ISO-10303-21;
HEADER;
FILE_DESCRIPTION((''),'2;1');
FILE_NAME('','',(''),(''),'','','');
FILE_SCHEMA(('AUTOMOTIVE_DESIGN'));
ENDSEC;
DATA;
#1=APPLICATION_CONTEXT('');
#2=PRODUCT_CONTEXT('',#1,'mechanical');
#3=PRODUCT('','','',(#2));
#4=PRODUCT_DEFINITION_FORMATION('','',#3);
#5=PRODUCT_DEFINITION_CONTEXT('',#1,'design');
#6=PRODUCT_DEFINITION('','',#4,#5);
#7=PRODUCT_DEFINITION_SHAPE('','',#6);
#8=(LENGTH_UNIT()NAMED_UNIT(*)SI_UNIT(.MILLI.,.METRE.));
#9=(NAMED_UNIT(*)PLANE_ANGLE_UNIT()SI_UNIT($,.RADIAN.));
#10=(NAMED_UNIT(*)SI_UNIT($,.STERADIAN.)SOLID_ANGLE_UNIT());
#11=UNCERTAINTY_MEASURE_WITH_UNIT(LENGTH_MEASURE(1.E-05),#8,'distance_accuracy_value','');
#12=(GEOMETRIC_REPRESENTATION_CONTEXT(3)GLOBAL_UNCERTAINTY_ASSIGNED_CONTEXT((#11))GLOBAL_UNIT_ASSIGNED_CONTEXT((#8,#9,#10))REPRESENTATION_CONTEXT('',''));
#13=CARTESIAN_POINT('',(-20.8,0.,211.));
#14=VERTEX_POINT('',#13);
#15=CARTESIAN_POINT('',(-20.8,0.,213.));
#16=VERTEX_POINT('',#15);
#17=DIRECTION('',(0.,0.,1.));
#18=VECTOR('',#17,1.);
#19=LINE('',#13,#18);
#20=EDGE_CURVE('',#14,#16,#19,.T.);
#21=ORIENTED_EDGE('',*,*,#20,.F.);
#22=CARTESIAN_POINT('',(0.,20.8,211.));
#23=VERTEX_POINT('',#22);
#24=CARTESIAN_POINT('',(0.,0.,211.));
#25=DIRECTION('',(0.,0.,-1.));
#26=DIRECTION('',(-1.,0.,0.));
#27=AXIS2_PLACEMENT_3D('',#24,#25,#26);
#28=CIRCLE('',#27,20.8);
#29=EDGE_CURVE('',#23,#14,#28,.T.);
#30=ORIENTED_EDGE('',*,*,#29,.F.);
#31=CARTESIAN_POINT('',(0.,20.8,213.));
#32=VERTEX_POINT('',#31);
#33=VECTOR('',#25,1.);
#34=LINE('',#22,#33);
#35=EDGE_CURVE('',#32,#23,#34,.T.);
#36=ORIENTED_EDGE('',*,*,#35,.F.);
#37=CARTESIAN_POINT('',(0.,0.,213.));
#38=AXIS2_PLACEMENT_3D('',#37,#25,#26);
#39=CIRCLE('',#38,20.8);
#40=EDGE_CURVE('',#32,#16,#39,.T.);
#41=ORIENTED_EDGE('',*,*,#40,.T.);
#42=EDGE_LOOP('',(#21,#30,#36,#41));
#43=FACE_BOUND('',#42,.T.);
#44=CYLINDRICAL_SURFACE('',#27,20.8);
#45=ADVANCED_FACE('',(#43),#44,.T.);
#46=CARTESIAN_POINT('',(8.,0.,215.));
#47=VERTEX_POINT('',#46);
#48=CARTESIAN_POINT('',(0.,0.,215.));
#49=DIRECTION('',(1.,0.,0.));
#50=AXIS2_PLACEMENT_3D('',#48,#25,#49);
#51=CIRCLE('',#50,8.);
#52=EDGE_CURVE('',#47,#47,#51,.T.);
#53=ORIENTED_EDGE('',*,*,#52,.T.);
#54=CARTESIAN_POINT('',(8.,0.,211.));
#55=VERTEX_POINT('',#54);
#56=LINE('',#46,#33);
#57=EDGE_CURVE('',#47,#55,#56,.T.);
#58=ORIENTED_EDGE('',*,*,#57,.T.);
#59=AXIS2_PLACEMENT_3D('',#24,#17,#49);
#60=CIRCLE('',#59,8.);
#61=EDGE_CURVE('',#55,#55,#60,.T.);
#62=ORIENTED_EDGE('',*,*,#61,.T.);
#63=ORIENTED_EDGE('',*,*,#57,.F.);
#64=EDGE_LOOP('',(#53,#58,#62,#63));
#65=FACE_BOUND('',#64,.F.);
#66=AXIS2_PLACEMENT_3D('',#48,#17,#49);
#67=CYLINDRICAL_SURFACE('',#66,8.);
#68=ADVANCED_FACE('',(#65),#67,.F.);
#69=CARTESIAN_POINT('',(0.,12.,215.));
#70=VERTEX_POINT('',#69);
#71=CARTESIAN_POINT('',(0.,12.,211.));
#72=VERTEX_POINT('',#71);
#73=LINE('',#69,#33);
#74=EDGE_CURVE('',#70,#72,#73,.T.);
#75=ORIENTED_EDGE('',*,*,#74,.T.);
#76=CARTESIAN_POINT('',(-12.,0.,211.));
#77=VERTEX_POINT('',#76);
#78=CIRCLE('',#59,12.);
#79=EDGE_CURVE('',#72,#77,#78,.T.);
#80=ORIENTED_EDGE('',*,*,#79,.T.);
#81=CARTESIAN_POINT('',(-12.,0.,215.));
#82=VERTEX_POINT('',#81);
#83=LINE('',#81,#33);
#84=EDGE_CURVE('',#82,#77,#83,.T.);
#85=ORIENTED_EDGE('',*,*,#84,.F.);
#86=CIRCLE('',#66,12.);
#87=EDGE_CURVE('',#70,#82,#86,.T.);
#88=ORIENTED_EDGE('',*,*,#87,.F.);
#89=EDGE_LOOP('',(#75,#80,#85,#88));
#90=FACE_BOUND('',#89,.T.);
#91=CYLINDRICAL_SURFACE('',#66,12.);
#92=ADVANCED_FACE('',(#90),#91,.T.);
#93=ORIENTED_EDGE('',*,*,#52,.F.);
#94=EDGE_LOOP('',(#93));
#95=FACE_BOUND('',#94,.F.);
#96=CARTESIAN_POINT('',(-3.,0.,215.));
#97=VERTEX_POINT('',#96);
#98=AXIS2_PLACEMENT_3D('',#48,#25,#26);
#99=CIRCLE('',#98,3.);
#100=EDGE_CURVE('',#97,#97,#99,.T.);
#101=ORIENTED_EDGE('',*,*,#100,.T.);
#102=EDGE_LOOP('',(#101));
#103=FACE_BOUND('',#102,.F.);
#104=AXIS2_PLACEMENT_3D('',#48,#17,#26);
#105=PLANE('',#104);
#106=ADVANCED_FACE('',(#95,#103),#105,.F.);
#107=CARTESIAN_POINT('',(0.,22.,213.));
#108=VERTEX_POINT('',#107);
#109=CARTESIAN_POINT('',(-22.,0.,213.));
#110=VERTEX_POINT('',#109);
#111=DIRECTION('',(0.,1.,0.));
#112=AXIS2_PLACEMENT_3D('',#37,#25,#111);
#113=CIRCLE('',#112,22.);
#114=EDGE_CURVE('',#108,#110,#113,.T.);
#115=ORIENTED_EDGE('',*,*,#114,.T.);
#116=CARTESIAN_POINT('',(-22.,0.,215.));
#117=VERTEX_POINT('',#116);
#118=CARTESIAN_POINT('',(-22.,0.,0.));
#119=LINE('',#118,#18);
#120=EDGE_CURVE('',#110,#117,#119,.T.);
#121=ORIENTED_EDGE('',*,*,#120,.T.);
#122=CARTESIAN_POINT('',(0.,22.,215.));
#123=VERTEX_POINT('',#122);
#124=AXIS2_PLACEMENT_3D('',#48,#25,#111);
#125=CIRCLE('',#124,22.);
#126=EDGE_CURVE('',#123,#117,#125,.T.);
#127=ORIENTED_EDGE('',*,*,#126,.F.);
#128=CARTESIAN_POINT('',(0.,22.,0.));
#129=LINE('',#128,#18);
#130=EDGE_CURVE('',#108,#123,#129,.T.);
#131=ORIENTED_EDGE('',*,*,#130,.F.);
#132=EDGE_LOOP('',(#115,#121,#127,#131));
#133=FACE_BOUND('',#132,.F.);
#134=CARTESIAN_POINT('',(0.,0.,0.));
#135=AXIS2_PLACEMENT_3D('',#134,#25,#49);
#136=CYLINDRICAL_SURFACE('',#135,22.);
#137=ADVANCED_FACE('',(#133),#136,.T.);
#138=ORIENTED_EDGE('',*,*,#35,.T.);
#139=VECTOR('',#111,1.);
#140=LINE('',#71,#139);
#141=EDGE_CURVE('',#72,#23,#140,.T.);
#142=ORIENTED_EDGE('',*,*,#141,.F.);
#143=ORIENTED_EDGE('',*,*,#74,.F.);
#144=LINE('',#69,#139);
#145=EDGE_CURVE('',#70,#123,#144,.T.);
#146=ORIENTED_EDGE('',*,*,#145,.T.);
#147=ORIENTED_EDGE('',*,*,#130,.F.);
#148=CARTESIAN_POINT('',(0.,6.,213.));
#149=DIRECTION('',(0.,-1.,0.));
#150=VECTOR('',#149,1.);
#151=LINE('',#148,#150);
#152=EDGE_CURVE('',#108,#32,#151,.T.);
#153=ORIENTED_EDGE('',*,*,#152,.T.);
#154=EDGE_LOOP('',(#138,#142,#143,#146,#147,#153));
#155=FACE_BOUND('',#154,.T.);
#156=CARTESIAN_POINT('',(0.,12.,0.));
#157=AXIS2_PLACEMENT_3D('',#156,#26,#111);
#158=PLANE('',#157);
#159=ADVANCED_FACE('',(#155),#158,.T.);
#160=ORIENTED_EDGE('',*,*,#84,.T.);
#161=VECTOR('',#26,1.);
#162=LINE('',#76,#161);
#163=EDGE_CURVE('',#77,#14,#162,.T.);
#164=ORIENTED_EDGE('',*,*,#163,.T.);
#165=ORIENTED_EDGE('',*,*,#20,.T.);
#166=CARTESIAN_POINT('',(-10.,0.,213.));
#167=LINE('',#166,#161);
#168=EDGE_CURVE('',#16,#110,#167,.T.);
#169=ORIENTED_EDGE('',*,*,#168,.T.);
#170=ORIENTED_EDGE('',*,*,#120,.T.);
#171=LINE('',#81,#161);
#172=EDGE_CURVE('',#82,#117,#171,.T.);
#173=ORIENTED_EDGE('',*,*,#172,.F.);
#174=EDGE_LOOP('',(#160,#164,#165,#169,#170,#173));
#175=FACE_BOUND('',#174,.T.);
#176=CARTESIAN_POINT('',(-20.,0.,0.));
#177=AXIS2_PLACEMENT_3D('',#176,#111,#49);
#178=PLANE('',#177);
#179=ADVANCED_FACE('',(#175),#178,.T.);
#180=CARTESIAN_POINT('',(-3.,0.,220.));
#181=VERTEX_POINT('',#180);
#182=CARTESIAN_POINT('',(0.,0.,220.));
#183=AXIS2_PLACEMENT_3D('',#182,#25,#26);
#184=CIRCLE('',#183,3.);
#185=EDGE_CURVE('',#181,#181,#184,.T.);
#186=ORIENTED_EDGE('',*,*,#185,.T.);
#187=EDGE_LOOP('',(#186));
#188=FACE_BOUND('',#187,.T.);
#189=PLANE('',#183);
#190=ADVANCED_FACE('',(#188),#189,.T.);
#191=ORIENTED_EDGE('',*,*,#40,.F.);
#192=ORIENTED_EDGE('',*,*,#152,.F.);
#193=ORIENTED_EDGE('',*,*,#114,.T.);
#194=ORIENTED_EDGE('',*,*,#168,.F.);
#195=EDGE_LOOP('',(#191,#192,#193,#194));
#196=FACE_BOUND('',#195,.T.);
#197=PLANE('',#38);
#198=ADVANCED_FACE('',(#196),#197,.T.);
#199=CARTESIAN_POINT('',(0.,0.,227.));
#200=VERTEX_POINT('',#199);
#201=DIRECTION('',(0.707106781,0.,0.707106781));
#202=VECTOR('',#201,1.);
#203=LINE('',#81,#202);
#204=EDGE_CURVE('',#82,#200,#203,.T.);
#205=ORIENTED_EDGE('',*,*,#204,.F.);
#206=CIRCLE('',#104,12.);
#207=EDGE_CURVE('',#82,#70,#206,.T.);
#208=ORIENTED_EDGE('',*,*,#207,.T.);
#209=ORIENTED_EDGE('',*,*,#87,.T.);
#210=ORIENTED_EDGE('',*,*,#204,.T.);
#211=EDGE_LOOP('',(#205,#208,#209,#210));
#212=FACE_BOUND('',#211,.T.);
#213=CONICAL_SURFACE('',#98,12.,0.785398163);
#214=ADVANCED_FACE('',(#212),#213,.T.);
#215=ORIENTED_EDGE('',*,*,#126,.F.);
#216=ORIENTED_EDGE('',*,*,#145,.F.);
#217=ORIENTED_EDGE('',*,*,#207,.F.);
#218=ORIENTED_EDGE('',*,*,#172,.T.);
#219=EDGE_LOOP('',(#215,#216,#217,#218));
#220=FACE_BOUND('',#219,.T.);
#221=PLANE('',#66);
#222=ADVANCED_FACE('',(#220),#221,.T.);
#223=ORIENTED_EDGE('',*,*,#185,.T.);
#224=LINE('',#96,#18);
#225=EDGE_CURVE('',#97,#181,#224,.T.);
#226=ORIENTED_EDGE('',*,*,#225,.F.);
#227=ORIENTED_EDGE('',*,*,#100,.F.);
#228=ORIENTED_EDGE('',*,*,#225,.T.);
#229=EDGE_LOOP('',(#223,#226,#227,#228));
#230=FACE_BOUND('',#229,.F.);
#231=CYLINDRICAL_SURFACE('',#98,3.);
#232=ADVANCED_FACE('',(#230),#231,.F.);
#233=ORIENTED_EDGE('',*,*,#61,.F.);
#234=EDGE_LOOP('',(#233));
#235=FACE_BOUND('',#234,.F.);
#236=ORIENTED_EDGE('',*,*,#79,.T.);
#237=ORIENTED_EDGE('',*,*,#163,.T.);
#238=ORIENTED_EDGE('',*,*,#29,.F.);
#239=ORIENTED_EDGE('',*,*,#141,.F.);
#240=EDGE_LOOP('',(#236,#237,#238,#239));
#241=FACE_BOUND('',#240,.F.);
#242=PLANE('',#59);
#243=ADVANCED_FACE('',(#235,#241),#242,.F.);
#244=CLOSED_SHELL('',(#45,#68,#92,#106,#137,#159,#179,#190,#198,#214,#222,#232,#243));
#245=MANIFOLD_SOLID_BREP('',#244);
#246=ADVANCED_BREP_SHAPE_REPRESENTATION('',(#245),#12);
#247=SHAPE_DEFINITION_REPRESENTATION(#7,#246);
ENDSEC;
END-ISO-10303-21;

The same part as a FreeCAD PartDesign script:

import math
import FreeCAD as App
import Part
import Sketcher

V = App.Vector
Q = App.Units.Quantity


def add_polygon(sketch, points):
    """Adds a closed chain of lines whose ends are joined by coincident constraints."""
    first, n = sketch.GeometryCount, len(points)
    for a, b in zip(points, points[1:] + points[:1]):
        sketch.addGeometry(Part.LineSegment(App.Vector(*a, 0), App.Vector(*b, 0)), False)
    for i in range(n):
        sketch.addConstraint(Sketcher.Constraint("Coincident", first + i, 2, first + (i + 1) % n, 1))

doc = App.newDocument("Part")
body = doc.addObject("PartDesign::Body", "Body")

# Sketch on XY plane
sketch1 = body.newObject("Sketcher::SketchObject", "Sketch")
sketch1.AttachmentSupport = (doc.getObject("XY_Plane"), [""])
sketch1.MapMode = "FlatFace"
sketch1.addGeometry(Part.LineSegment(V(0, 22, 0), V(0, 20, 0)), False)
sketch1.addGeometry(Part.ArcOfCircle(Part.Circle(V(0, 0, 0), V(0, 0, 1), 20), math.radians(180), math.radians(450)), False)
sketch1.addGeometry(Part.LineSegment(V(-20, 0, 0), V(-22, 0, 0)), False)
sketch1.addGeometry(Part.ArcOfCircle(Part.Circle(V(0, 0, 0), V(0, 0, 1), 22), math.radians(180), math.radians(450)), False)
sketch1.addConstraint(Sketcher.Constraint("Coincident", 0, 2, 1, 2))
sketch1.addConstraint(Sketcher.Constraint("Coincident", 1, 1, 2, 1))
sketch1.addConstraint(Sketcher.Constraint("Coincident", 2, 2, 3, 1))
sketch1.addConstraint(Sketcher.Constraint("Coincident", 3, 2, 0, 1))
sketch1.addConstraint(Sketcher.Constraint("Vertical", 0))
sketch1.addConstraint(Sketcher.Constraint("Horizontal", 2))
sketch1.addConstraint(Sketcher.Constraint("Coincident", 1, 3, -1, 1))
sketch1.addConstraint(Sketcher.Constraint("Coincident", 3, 3, -1, 1))
sketch1.addConstraint(Sketcher.Constraint("PointOnObject", 0, 2, -2))
sketch1.addConstraint(Sketcher.Constraint("PointOnObject", 1, 1, -1))
sketch1.addConstraint(Sketcher.Constraint("Radius", 1, Q("20 mm")))
sketch1.addConstraint(Sketcher.Constraint("DistanceX", 2, 2, 2, 1, Q("2 mm")))
pad1 = body.newObject("PartDesign::Pad", "Pad")
pad1.Profile = sketch1
pad1.Length = 215

# Sketch on XY plane
sketch2 = body.newObject("Sketcher::SketchObject", "Sketch001")
sketch2.AttachmentSupport = (doc.getObject("XY_Plane"), [""])
sketch2.MapMode = "FlatFace"
sketch2.AttachmentOffset = App.Placement(V(0, 0, 215), App.Rotation())
sketch2.addGeometry(Part.LineSegment(V(-12, 0, 0), V(-20, 0, 0)), False)
sketch2.addGeometry(Part.ArcOfCircle(Part.Circle(V(0, 0, 0), V(0, 0, 1), 20), math.radians(180), math.radians(450)), False)
sketch2.addGeometry(Part.LineSegment(V(0, 20, 0), V(0, 12, 0)), False)
sketch2.addGeometry(Part.ArcOfCircle(Part.Circle(V(0, 0, 0), V(0, 0, 1), 12), math.radians(90), math.radians(180)), False)
sketch2.addGeometry(Part.Circle(V(0, 0, 0), V(0, 0, 1), 8), False)
sketch2.addConstraint(Sketcher.Constraint("Coincident", 0, 2, 1, 1))
sketch2.addConstraint(Sketcher.Constraint("Coincident", 1, 2, 2, 1))
sketch2.addConstraint(Sketcher.Constraint("Coincident", 2, 2, 3, 1))
sketch2.addConstraint(Sketcher.Constraint("Coincident", 3, 2, 0, 1))
sketch2.addConstraint(Sketcher.Constraint("Horizontal", 0))
sketch2.addConstraint(Sketcher.Constraint("Vertical", 2))
sketch2.addConstraint(Sketcher.Constraint("Coincident", 1, 3, -1, 1))
sketch2.addConstraint(Sketcher.Constraint("Coincident", 3, 3, -1, 1))
sketch2.addConstraint(Sketcher.Constraint("Coincident", 4, 3, -1, 1))
sketch2.addConstraint(Sketcher.Constraint("PointOnObject", 0, 2, -1))
sketch2.addConstraint(Sketcher.Constraint("PointOnObject", 1, 2, -2))
sketch2.addConstraint(Sketcher.Constraint("Diameter", 4, Q("16 mm")))
sketch2.addConstraint(Sketcher.Constraint("Radius", 1, Q("20 mm")))
sketch2.addConstraint(Sketcher.Constraint("Radius", 3, Q("12 mm")))
pad2 = body.newObject("PartDesign::Pad", "Pad001")
pad2.Profile = sketch2
pad2.Length = 4
pad2.Reversed = True

# Sketch on XY plane
sketch3 = body.newObject("Sketcher::SketchObject", "Sketch002")
sketch3.AttachmentSupport = (doc.getObject("XY_Plane"), [""])
sketch3.MapMode = "FlatFace"
sketch3.addGeometry(Part.ArcOfCircle(Part.Circle(V(0, 0, 0), V(0, 0, 1), 20), math.radians(180), math.radians(450)), False)
sketch3.addGeometry(Part.LineSegment(V(-20, 0, 0), V(-12, 0, 0)), False)
sketch3.addGeometry(Part.ArcOfCircle(Part.Circle(V(0, 0, 0), V(0, 0, 1), 12), math.radians(90), math.radians(180)), False)
sketch3.addGeometry(Part.LineSegment(V(0, 12, 0), V(0, 20, 0)), False)
sketch3.addGeometry(Part.Circle(V(0, 0, 0), V(0, 0, 1), 8), False)
sketch3.addConstraint(Sketcher.Constraint("Coincident", 0, 1, 1, 1))
sketch3.addConstraint(Sketcher.Constraint("Coincident", 1, 2, 2, 2))
sketch3.addConstraint(Sketcher.Constraint("Coincident", 2, 1, 3, 1))
sketch3.addConstraint(Sketcher.Constraint("Coincident", 3, 2, 0, 2))
sketch3.addConstraint(Sketcher.Constraint("Horizontal", 1))
sketch3.addConstraint(Sketcher.Constraint("Vertical", 3))
sketch3.addConstraint(Sketcher.Constraint("Coincident", 0, 3, -1, 1))
sketch3.addConstraint(Sketcher.Constraint("Coincident", 2, 3, -1, 1))
sketch3.addConstraint(Sketcher.Constraint("Coincident", 4, 3, -1, 1))
sketch3.addConstraint(Sketcher.Constraint("PointOnObject", 0, 1, -1))
sketch3.addConstraint(Sketcher.Constraint("PointOnObject", 2, 1, -2))
sketch3.addConstraint(Sketcher.Constraint("Diameter", 4, Q("16 mm")))
sketch3.addConstraint(Sketcher.Constraint("Radius", 0, Q("20 mm")))
sketch3.addConstraint(Sketcher.Constraint("Radius", 2, Q("12 mm")))
pad3 = body.newObject("PartDesign::Pad", "Pad002")
pad3.Profile = sketch3
pad3.Length = 4

# Sketch on XY plane
sketch4 = body.newObject("Sketcher::SketchObject", "Sketch003")
sketch4.AttachmentSupport = (doc.getObject("XY_Plane"), [""])
sketch4.MapMode = "FlatFace"
add_polygon(sketch4, [(-60, 0), (-20, 0), (-20, -4), (-60, -4)])  # lines 0-3
sketch4.addConstraint(Sketcher.Constraint("Horizontal", 0))
sketch4.addConstraint(Sketcher.Constraint("Vertical", 1))
sketch4.addConstraint(Sketcher.Constraint("Horizontal", 2))
sketch4.addConstraint(Sketcher.Constraint("Vertical", 3))
sketch4.addConstraint(Sketcher.Constraint("PointOnObject", 0, 2, -1))
sketch4.addConstraint(Sketcher.Constraint("DistanceX", 0, 1, 0, 2, Q("40 mm")))
sketch4.addConstraint(Sketcher.Constraint("DistanceY", 1, 2, 1, 1, Q("4 mm")))
sketch4.addConstraint(Sketcher.Constraint("DistanceX", 0, 2, -1, 1, Q("20 mm")))
pad4 = body.newObject("PartDesign::Pad", "Pad003")
pad4.Profile = sketch4
pad4.Length = 60

# Sketch on XZ plane
sketch5 = body.newObject("Sketcher::SketchObject", "Sketch004")
sketch5.AttachmentSupport = (doc.getObject("XZ_Plane"), [""])
sketch5.MapMode = "FlatFace"
sketch5.AttachmentOffset = App.Placement(V(0, 0, 4), App.Rotation())
add_polygon(sketch5, [(-35, 50), (-50, 50), (-50, 45), (-35, 45)])  # lines 0-3
add_polygon(sketch5, [(-35, 15), (-50, 15), (-50, 10), (-35, 10)])  # lines 4-7
add_polygon(sketch5, [(-35, 28), (-35, 32), (-50, 32), (-50, 28)])  # lines 8-11
sketch5.addConstraint(Sketcher.Constraint("Horizontal", 0))
sketch5.addConstraint(Sketcher.Constraint("Vertical", 1))
sketch5.addConstraint(Sketcher.Constraint("Horizontal", 2))
sketch5.addConstraint(Sketcher.Constraint("Vertical", 3))
sketch5.addConstraint(Sketcher.Constraint("Horizontal", 4))
sketch5.addConstraint(Sketcher.Constraint("Vertical", 5))
sketch5.addConstraint(Sketcher.Constraint("Horizontal", 6))
sketch5.addConstraint(Sketcher.Constraint("Vertical", 7))
sketch5.addConstraint(Sketcher.Constraint("Vertical", 8))
sketch5.addConstraint(Sketcher.Constraint("Horizontal", 9))
sketch5.addConstraint(Sketcher.Constraint("Vertical", 10))
sketch5.addConstraint(Sketcher.Constraint("Horizontal", 11))
sketch5.addConstraint(Sketcher.Constraint("Vertical", 1, 2, 4, 2))
sketch5.addConstraint(Sketcher.Constraint("Vertical", 3, 2, 6, 2))
sketch5.addConstraint(Sketcher.Constraint("Vertical", 7, 2, 8, 2))
sketch5.addConstraint(Sketcher.Constraint("Vertical", 5, 2, 9, 2))
sketch5.addConstraint(Sketcher.Constraint("Equal", 3, 5))
sketch5.addConstraint(Sketcher.Constraint("Equal", 7, 8))
sketch5.addConstraint(Sketcher.Constraint("DistanceX", 0, 2, 0, 1, Q("15 mm")))
sketch5.addConstraint(Sketcher.Constraint("DistanceY", 1, 2, 1, 1, Q("5 mm")))
sketch5.addConstraint(Sketcher.Constraint("DistanceY", -1, 1, 4, 2, Q("15 mm")))
sketch5.addConstraint(Sketcher.Constraint("DistanceX", 0, 2, -1, 1, Q("50 mm")))
sketch5.addConstraint(Sketcher.Constraint("DistanceY", -1, 1, 0, 2, Q("50 mm")))
sketch5.addConstraint(Sketcher.Constraint("DistanceY", -1, 1, 8, 2, Q("32.5 mm")))
pocket1 = body.newObject("PartDesign::Pocket", "Pocket")
pocket1.Profile = sketch5
pocket1.Length = 10

# Sketch on YZ plane
sketch6 = body.newObject("Sketcher::SketchObject", "Sketch005")
sketch6.AttachmentSupport = (doc.getObject("YZ_Plane"), [""])
sketch6.MapMode = "FlatFace"
sketch6.AttachmentOffset = App.Placement(V(0, 0, -60), App.Rotation())
add_polygon(sketch6, [(-32, 211), (28, 211), (28, -2), (-32, -2)])  # lines 0-3
sketch6.addConstraint(Sketcher.Constraint("Horizontal", 0))
sketch6.addConstraint(Sketcher.Constraint("Vertical", 1))
sketch6.addConstraint(Sketcher.Constraint("Horizontal", 2))
sketch6.addConstraint(Sketcher.Constraint("Vertical", 3))
sketch6.addConstraint(Sketcher.Constraint("DistanceY", -1, 1, 0, 2, Q("211 mm")))
sketch6.addConstraint(Sketcher.Constraint("DistanceX", 0, 1, 0, 2, Q("60.234 mm")))
sketch6.addConstraint(Sketcher.Constraint("DistanceY", 1, 2, 1, 1, Q("212.8272 mm")))
sketch6.addConstraint(Sketcher.Constraint("DistanceX", 2, 2, -1, 1, Q("32.203 mm")))
pocket2 = body.newObject("PartDesign::Pocket", "Pocket001")
pocket2.Profile = sketch6
pocket2.Length = 100
pocket2.Reversed = True

# Sketch on XY plane
sketch7 = body.newObject("Sketcher::SketchObject", "Sketch006")
sketch7.AttachmentSupport = (doc.getObject("XY_Plane"), [""])
sketch7.MapMode = "FlatFace"
sketch7.AttachmentOffset = App.Placement(V(0, 0, 211), App.Rotation())
sketch7.addGeometry(Part.Circle(V(0, 0, 0), V(0, 0, 1), 22), False)
sketch7.addGeometry(Part.Circle(V(0, 0, 0), V(0, 0, 1), 21), False)
sketch7.addConstraint(Sketcher.Constraint("Coincident", 0, 3, -1, 1))
sketch7.addConstraint(Sketcher.Constraint("Coincident", 1, 3, -1, 1))
sketch7.addConstraint(Sketcher.Constraint("Diameter", 0, Q("44 mm")))
sketch7.addConstraint(Sketcher.Constraint("Diameter", 1, Q("41.6 mm")))
pocket3 = body.newObject("PartDesign::Pocket", "Pocket002")
pocket3.Profile = sketch7
pocket3.Length = 2
pocket3.Reversed = True

# Sketch on XZ plane
sketch8 = body.newObject("Sketcher::SketchObject", "Sketch007")
sketch8.AttachmentSupport = (doc.getObject("XZ_Plane"), [""])
sketch8.MapMode = "FlatFace"
add_polygon(sketch8, [(0, 215), (-12, 215), (0, 227)])  # lines 0-2
sketch8.addConstraint(Sketcher.Constraint("Horizontal", 0))
sketch8.addConstraint(Sketcher.Constraint("Vertical", 2))
sketch8.addConstraint(Sketcher.Constraint("PointOnObject", 1, 2, -2))
sketch8.addConstraint(Sketcher.Constraint("Equal", 0, 2))
sketch8.addConstraint(Sketcher.Constraint("DistanceX", 0, 2, 0, 1, Q("12 mm")))
sketch8.addConstraint(Sketcher.Constraint("DistanceY", -1, 1, 0, 2, Q("215 mm")))
revolution = body.newObject("PartDesign::Revolution", "Revolution")
revolution.Profile = sketch8
revolution.ReferenceAxis = (sketch8, ["V_Axis"])
revolution.Angle = 360

# Sketch on XY plane
sketch9 = body.newObject("Sketcher::SketchObject", "Sketch008")
sketch9.AttachmentSupport = (doc.getObject("XY_Plane"), [""])
sketch9.MapMode = "FlatFace"
sketch9.AttachmentOffset = App.Placement(V(0, 0, 215), App.Rotation())
sketch9.addGeometry(Part.Circle(V(0, 0, 0), V(0, 0, 1), 3), False)
sketch9.addConstraint(Sketcher.Constraint("Coincident", 0, 3, -1, 1))
sketch9.addConstraint(Sketcher.Constraint("Diameter", 0, Q("6 mm")))
pocket4 = body.newObject("PartDesign::Pocket", "Pocket003")
pocket4.Profile = sketch9
pocket4.Length = 5
pocket4.Reversed = True

doc.recompute()
